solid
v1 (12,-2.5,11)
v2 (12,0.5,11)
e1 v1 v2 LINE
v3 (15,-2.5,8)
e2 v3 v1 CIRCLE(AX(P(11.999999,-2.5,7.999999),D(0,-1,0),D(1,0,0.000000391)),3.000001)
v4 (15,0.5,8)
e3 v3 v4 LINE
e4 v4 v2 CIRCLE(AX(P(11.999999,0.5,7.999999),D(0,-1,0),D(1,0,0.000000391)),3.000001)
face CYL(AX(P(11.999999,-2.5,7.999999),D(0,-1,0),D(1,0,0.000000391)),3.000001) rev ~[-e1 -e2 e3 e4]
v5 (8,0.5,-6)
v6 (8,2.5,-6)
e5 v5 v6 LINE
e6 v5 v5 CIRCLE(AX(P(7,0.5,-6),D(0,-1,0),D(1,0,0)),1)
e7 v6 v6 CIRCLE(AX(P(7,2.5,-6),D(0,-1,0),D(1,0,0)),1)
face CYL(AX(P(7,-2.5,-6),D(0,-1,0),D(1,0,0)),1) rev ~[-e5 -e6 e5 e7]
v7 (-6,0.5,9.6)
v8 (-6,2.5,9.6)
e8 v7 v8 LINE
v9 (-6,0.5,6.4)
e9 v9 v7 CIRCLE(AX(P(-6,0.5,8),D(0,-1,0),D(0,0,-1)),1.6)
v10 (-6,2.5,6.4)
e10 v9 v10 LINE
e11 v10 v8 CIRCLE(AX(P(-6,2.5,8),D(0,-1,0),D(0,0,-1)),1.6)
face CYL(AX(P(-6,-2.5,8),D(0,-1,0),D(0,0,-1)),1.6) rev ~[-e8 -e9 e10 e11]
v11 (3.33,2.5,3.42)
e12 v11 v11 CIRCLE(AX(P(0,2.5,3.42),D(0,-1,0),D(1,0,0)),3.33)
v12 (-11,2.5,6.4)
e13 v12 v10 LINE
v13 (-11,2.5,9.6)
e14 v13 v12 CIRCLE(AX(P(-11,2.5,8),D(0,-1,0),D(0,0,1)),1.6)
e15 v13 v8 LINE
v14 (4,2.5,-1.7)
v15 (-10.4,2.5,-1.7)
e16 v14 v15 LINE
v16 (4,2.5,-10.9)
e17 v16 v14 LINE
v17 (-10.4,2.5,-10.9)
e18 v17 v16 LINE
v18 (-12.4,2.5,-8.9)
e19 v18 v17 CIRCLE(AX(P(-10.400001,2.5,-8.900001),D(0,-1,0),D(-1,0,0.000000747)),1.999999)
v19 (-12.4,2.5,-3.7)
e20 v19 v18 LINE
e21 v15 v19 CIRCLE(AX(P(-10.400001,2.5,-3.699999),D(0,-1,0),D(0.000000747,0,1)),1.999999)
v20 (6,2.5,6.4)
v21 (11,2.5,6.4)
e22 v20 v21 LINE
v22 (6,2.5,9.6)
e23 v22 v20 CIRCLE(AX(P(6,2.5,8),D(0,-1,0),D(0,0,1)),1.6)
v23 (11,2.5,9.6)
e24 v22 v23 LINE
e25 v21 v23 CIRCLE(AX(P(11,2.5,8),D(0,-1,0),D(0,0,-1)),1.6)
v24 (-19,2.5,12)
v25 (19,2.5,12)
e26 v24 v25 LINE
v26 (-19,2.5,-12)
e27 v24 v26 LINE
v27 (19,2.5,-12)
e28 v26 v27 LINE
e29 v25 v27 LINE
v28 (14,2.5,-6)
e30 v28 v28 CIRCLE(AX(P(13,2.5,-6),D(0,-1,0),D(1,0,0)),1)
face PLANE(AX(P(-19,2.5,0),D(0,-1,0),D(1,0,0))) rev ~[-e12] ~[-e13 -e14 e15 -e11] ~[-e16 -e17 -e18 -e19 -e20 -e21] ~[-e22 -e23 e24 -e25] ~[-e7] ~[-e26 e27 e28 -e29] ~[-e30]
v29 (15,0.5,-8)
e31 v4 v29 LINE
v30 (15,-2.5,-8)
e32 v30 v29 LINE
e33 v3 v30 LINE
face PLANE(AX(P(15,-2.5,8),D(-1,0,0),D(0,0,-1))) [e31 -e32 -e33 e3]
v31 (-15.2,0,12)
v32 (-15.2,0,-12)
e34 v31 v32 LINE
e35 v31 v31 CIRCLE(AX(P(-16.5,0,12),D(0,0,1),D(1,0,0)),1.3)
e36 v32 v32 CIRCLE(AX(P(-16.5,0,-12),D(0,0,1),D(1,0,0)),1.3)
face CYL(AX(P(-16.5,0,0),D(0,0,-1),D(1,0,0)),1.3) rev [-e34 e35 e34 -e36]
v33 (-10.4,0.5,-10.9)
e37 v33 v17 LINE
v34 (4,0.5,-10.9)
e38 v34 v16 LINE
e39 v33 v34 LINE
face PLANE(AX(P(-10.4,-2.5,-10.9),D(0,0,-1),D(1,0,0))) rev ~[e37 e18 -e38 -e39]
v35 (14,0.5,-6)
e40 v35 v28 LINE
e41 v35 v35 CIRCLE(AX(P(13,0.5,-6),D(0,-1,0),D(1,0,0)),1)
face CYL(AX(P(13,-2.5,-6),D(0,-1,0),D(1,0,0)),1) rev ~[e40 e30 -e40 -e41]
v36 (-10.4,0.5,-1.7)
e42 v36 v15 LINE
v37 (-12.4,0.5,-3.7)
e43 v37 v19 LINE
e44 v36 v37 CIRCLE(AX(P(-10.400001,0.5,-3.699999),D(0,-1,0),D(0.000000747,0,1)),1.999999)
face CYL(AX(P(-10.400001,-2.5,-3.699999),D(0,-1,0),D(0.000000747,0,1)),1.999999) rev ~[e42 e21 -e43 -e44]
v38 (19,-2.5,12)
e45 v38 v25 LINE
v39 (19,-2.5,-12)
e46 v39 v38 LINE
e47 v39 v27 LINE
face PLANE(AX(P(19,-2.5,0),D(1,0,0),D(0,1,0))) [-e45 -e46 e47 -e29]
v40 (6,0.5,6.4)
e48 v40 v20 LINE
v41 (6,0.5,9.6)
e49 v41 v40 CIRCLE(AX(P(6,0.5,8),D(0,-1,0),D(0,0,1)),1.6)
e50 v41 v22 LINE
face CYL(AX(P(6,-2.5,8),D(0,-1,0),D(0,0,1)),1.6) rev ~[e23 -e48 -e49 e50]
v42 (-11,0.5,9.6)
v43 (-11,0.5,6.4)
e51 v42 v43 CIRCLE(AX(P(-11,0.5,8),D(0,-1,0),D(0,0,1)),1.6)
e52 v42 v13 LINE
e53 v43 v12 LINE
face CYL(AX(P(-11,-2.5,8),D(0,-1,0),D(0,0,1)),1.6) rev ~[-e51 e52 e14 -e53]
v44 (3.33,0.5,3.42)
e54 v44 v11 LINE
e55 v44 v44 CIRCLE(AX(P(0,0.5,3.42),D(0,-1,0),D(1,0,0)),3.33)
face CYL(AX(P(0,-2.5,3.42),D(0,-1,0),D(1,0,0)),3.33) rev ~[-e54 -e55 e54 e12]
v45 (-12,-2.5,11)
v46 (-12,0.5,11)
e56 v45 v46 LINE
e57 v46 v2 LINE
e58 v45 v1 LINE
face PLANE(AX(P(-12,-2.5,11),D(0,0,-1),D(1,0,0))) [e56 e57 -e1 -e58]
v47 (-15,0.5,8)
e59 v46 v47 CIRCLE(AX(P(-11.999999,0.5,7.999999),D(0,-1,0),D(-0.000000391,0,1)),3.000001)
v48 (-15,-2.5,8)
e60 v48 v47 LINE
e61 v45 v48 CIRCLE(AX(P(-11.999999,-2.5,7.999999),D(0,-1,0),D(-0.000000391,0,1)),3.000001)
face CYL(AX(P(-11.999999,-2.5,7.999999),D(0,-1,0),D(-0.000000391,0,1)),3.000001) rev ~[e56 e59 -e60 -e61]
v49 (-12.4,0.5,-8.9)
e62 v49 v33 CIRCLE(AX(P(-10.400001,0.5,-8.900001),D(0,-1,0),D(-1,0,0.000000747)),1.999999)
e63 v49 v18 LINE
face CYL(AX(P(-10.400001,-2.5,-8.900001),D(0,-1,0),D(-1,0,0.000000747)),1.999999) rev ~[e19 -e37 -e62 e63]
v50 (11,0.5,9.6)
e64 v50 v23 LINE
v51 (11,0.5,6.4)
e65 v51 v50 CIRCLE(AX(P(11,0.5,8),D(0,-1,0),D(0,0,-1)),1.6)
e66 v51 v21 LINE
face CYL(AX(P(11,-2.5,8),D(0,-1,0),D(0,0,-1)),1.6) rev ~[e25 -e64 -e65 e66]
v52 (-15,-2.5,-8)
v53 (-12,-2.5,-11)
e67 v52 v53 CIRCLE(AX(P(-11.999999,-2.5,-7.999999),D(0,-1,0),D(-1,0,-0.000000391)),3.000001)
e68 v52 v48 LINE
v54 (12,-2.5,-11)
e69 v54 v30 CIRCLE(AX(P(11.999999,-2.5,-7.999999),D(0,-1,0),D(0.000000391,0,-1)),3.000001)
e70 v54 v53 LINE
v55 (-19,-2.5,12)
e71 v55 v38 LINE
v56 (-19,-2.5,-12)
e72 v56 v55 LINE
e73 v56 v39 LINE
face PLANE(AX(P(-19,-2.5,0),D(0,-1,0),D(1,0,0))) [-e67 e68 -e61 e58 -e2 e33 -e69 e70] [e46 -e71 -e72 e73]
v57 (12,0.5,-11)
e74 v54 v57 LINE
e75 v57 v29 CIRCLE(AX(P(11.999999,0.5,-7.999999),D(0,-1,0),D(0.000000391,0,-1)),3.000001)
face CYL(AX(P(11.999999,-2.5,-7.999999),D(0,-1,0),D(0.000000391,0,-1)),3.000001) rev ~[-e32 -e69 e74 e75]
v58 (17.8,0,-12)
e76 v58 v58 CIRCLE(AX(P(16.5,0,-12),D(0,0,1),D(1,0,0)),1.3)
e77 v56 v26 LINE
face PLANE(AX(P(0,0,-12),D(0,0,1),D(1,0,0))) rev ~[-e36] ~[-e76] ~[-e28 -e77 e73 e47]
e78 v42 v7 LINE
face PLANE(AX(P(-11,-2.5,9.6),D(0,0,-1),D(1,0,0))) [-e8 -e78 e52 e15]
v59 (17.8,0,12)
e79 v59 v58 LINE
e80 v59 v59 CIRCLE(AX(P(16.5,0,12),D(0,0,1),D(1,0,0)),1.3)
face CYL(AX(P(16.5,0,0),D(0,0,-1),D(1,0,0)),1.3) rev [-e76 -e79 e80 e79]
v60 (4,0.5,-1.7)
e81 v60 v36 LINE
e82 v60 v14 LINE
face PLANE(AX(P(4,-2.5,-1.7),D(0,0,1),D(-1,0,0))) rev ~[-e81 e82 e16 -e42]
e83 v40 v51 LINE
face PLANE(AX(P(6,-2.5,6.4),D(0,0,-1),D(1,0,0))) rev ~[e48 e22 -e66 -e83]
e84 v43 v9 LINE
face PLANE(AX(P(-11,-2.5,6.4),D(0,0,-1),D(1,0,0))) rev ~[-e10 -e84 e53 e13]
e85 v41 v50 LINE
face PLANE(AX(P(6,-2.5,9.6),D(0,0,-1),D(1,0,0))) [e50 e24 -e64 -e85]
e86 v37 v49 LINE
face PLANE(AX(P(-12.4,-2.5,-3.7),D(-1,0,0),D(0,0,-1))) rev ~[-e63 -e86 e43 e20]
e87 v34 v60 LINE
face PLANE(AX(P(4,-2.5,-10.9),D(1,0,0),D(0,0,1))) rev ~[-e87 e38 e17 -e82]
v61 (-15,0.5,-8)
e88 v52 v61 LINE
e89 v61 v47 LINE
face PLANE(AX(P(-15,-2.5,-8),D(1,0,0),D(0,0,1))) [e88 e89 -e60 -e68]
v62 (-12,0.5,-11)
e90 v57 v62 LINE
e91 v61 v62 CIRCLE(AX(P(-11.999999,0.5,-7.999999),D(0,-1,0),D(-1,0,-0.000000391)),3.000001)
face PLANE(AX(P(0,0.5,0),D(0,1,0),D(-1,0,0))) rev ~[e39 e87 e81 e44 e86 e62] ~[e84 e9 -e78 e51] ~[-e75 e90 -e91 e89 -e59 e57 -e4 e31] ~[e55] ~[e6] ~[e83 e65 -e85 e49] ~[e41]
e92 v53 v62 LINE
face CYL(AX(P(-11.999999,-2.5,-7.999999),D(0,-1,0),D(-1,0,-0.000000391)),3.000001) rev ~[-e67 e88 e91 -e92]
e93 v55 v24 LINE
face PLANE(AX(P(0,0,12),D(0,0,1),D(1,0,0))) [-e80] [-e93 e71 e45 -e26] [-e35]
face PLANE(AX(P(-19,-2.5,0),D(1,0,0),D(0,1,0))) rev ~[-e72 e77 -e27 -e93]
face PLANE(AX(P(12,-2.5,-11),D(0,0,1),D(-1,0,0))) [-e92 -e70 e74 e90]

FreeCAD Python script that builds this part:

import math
import FreeCAD as App
import Part
import Sketcher

doc = App.newDocument("Part")
params = doc.addObject("Spreadsheet::Sheet", "Params")
for row, (alias, value) in enumerate([
    ("sketch1_diameter", "2.6 mm"),
    ("sketch1_width", "38 mm"),
    ("sketch1_height", "5 mm"),
    ("pad1_length", "24 mm"),
    ("sketch2_diameter", "2 mm"),
    ("sketch2_radius", "1.999999 mm"),
    ("sketch2_radius2", "1.6 mm"),
    ("sketch2_diameter2", "6.66 mm"),
    ("sketch2_width", "5 mm"),
    ("sketch3_radius", "3.000001 mm"),
    ("sketch3_width", "24 mm"),
    ("sketch3_height", "16 mm"),
    ("pocket2_length", "3 mm"),
], start=1):
    params.set(f"A{row}", alias)
    params.set(f"B{row}", "=" + value)
    params.setAlias(f"B{row}", alias)

body = doc.addObject("PartDesign::Body", "Body")

# Sketch on XY plane
sketch1 = body.newObject("Sketcher::SketchObject", "Sketch")
sketch1.AttachmentSupport = (doc.getObject("XY_Plane"), [""])
sketch1.MapMode = "FlatFace"
sketch1.addGeometry([
    Part.LineSegment(App.Vector(-19, 2.5, 0), App.Vector(-19, -2.5, 0)),  # 0
    Part.LineSegment(App.Vector(-19, -2.5, 0), App.Vector(19, -2.5, 0)),  # 1
    Part.LineSegment(App.Vector(19, -2.5, 0), App.Vector(19, 2.5, 0)),  # 2
    Part.LineSegment(App.Vector(19, 2.5, 0), App.Vector(-19, 2.5, 0)),  # 3
    Part.Circle(App.Vector(-16.5, 0, 0), App.Vector(0, 0, 1), 1.3),  # 4
    Part.Circle(App.Vector(16.5, 0, 0), App.Vector(0, 0, 1), 1.3),  # 5
], False)
sketch1.addConstraint([
    Sketcher.Constraint("Coincident", 0, 2, 1, 1),
    Sketcher.Constraint("Coincident", 1, 2, 2, 1),
    Sketcher.Constraint("Coincident", 2, 2, 3, 1),
    Sketcher.Constraint("Coincident", 3, 2, 0, 1),
    Sketcher.Constraint("Vertical", 0),
    Sketcher.Constraint("Horizontal", 1),
    Sketcher.Constraint("Vertical", 2),
    Sketcher.Constraint("Horizontal", 3),
    Sketcher.Constraint("Equal", 4, 5),
    Sketcher.Constraint("Symmetric", 4, 3, 5, 3, -1, 1),
    Sketcher.Constraint("Symmetric", 0, 2, 2, 2, -1, 1),
    Sketcher.Constraint("PointOnObject", 4, 3, -1),
    Sketcher.Constraint("Diameter", 4, 2.6),
    Sketcher.Constraint("DistanceX", 1, 1, 1, 2, 38.0),
    Sketcher.Constraint("DistanceY", 0, 2, 0, 1, 5.0),
    Sketcher.Constraint("DistanceX", 4, 3, 5, 3, 33.0),
])
sketch1.setExpression("Constraints[12]", "Params.sketch1_diameter")
sketch1.setExpression("Constraints[13]", "Params.sketch1_width")
sketch1.setExpression("Constraints[14]", "Params.sketch1_height")
pad1 = body.newObject("PartDesign::Pad", "Pad")
pad1.Profile = sketch1
pad1.setExpression("Length", "Params.pad1_length")
pad1.Midplane = True

# Sketch on XZ plane
sketch2 = body.newObject("Sketcher::SketchObject", "Sketch001")
sketch2.AttachmentSupport = (doc.getObject("XZ_Plane"), [""])
sketch2.MapMode = "FlatFace"
sketch2.AttachmentOffset = App.Placement(App.Vector(0, 0, 2.5), App.Rotation())
sketch2.addGeometry([
    Part.Circle(App.Vector(0, 3.42, 0), App.Vector(0, 0, 1), 3.33),  # 0
    Part.Circle(App.Vector(7, -6, 0), App.Vector(0, 0, 1), 1),  # 1
    Part.Circle(App.Vector(13, -6, 0), App.Vector(0, 0, 1), 1),  # 2
    Part.LineSegment(App.Vector(4, -1.7, 0), App.Vector(-10.4, -1.7, 0)),  # 3
    Part.ArcOfCircle(Part.Circle(App.Vector(-10.400001, -3.699999, 0), App.Vector(0, 0, 1), 1.999999), math.radians(89.999957), math.radians(180.000043)),  # 4
    Part.LineSegment(App.Vector(-12.4, -3.7, 0), App.Vector(-12.4, -8.9, 0)),  # 5
    Part.ArcOfCircle(Part.Circle(App.Vector(-10.400001, -8.900001, 0), App.Vector(0, 0, 1), 1.999999), math.radians(179.999957), math.radians(270.000043)),  # 6
    Part.LineSegment(App.Vector(-10.4, -10.9, 0), App.Vector(4, -10.9, 0)),  # 7
    Part.LineSegment(App.Vector(4, -10.9, 0), App.Vector(4, -1.7, 0)),  # 8
    Part.ArcOfCircle(Part.Circle(App.Vector(-11, 8, 0), App.Vector(0, 0, 1), 1.6), math.radians(90), math.radians(270)),  # 9
    Part.LineSegment(App.Vector(-11, 6.4, 0), App.Vector(-6, 6.4, 0)),  # 10
    Part.ArcOfCircle(Part.Circle(App.Vector(-6, 8, 0), App.Vector(0, 0, 1), 1.6), math.radians(-90), math.radians(90)),  # 11
    Part.LineSegment(App.Vector(-6, 9.6, 0), App.Vector(-11, 9.6, 0)),  # 12
    Part.ArcOfCircle(Part.Circle(App.Vector(6, 8, 0), App.Vector(0, 0, 1), 1.6), math.radians(90), math.radians(270)),  # 13
    Part.LineSegment(App.Vector(6, 6.4, 0), App.Vector(11, 6.4, 0)),  # 14
    Part.ArcOfCircle(Part.Circle(App.Vector(11, 8, 0), App.Vector(0, 0, 1), 1.6), math.radians(-90), math.radians(90)),  # 15
    Part.LineSegment(App.Vector(11, 9.6, 0), App.Vector(6, 9.6, 0)),  # 16
], False)
sketch2.addConstraint([
    Sketcher.Constraint("Tangent", 3, 2, 4, 1),
    Sketcher.Constraint("Tangent", 4, 2, 5, 1),
    Sketcher.Constraint("Tangent", 5, 2, 6, 1),
    Sketcher.Constraint("Tangent", 6, 2, 7, 1),
    Sketcher.Constraint("Coincident", 7, 2, 8, 1),
    Sketcher.Constraint("Coincident", 8, 2, 3, 1),
    Sketcher.Constraint("Tangent", 9, 2, 10, 1),
    Sketcher.Constraint("Tangent", 10, 2, 11, 1),
    Sketcher.Constraint("Tangent", 11, 2, 12, 1),
    Sketcher.Constraint("Tangent", 12, 2, 9, 1),
    Sketcher.Constraint("Tangent", 13, 2, 14, 1),
    Sketcher.Constraint("Tangent", 14, 2, 15, 1),
    Sketcher.Constraint("Tangent", 15, 2, 16, 1),
    Sketcher.Constraint("Tangent", 16, 2, 13, 1),
    Sketcher.Constraint("Horizontal", 3),
    Sketcher.Constraint("Vertical", 5),
    Sketcher.Constraint("Horizontal", 7),
    Sketcher.Constraint("Vertical", 8),
    Sketcher.Constraint("Horizontal", 10),
    Sketcher.Constraint("Horizontal", 12),
    Sketcher.Constraint("Horizontal", 14),
    Sketcher.Constraint("Horizontal", 16),
    Sketcher.Constraint("Equal", 1, 2),
    Sketcher.Constraint("Equal", 4, 6),
    Sketcher.Constraint("Equal", 11, 13),
    Sketcher.Constraint("Symmetric", 11, 3, 13, 3, -2),
    Sketcher.Constraint("PointOnObject", 0, 3, -2),
    Sketcher.Constraint("Horizontal", 1, 3, 2, 3),
    Sketcher.Constraint("Equal", 12, 14),
    Sketcher.Constraint("Diameter", 1, 2.0),
    Sketcher.Constraint("Radius", 4, 1.999999),
    Sketcher.Constraint("Radius", 9, 1.6),
    Sketcher.Constraint("Diameter", 0, 6.66),
    Sketcher.Constraint("DistanceX", 10, 1, 10, 2, 5.0),
    Sketcher.Constraint("DistanceX", 3, 2, 3, 1, 14.4),
    Sketcher.Constraint("DistanceY", 5, 2, 5, 1, 5.2),
    Sketcher.Constraint("DistanceX", -1, 1, 1, 3, 7.0),
    Sketcher.Constraint("DistanceY", 1, 3, -1, 1, 6.0),
    Sketcher.Constraint("DistanceX", -1, 1, 2, 3, 13.0),
    Sketcher.Constraint("DistanceX", 9, 3, -1, 1, 11.0),
    Sketcher.Constraint("DistanceY", -1, 1, 9, 3, 8.0),
    Sketcher.Constraint("DistanceX", -1, 1, 7, 2, 4.0),
    Sketcher.Constraint("DistanceY", 4, 3, -1, 1, 3.699999),
    Sketcher.Constraint("DistanceY", -1, 1, 0, 3, 3.42),
])
sketch2.setExpression("Constraints[29]", "Params.sketch2_diameter")
sketch2.setExpression("Constraints[30]", "Params.sketch2_radius")
sketch2.setExpression("Constraints[31]", "Params.sketch2_radius2")
sketch2.setExpression("Constraints[32]", "Params.sketch2_diameter2")
sketch2.setExpression("Constraints[33]", "Params.sketch2_width")
pocket1 = body.newObject("PartDesign::Pocket", "Pocket")
pocket1.Profile = sketch2
pocket1.Type = "ThroughAll"

# Sketch on XZ plane
sketch3 = body.newObject("Sketcher::SketchObject", "Sketch002")
sketch3.AttachmentSupport = (doc.getObject("XZ_Plane"), [""])
sketch3.MapMode = "FlatFace"
sketch3.AttachmentOffset = App.Placement(App.Vector(0, 0, 2.5), App.Rotation())
sketch3.addGeometry([
    Part.LineSegment(App.Vector(12, 11, 0), App.Vector(-12, 11, 0)),  # 0
    Part.ArcOfCircle(Part.Circle(App.Vector(-11.999999, 7.999999, 0), App.Vector(0, 0, 1), 3.000001), math.radians(90.000022), math.radians(179.999978)),  # 1
    Part.LineSegment(App.Vector(-15, 8, 0), App.Vector(-15, -8, 0)),  # 2
    Part.ArcOfCircle(Part.Circle(App.Vector(-11.999999, -7.999999, 0), App.Vector(0, 0, 1), 3.000001), math.radians(-179.999978), math.radians(-90.000022)),  # 3
    Part.LineSegment(App.Vector(-12, -11, 0), App.Vector(12, -11, 0)),  # 4
    Part.ArcOfCircle(Part.Circle(App.Vector(11.999999, -7.999999, 0), App.Vector(0, 0, 1), 3.000001), math.radians(-89.999978), math.radians(-0.000022)),  # 5
    Part.LineSegment(App.Vector(15, -8, 0), App.Vector(15, 8, 0)),  # 6
    Part.ArcOfCircle(Part.Circle(App.Vector(11.999999, 7.999999, 0), App.Vector(0, 0, 1), 3.000001), math.radians(0.000022), math.radians(89.999978)),  # 7
], False)
sketch3.addConstraint([
    Sketcher.Constraint("Tangent", 0, 2, 1, 1),
    Sketcher.Constraint("Tangent", 1, 2, 2, 1),
    Sketcher.Constraint("Tangent", 2, 2, 3, 1),
    Sketcher.Constraint("Tangent", 3, 2, 4, 1),
    Sketcher.Constraint("Tangent", 4, 2, 5, 1),
    Sketcher.Constraint("Tangent", 5, 2, 6, 1),
    Sketcher.Constraint("Tangent", 6, 2, 7, 1),
    Sketcher.Constraint("Tangent", 7, 2, 0, 1),
    Sketcher.Constraint("Horizontal", 0),
    Sketcher.Constraint("Vertical", 2),
    Sketcher.Constraint("Horizontal", 4),
    Sketcher.Constraint("Vertical", 6),
    Sketcher.Constraint("Equal", 1, 3),
    Sketcher.Constraint("Equal", 3, 5),
    Sketcher.Constraint("Equal", 5, 7),
    Sketcher.Constraint("Symmetric", 1, 3, 5, 3, -1, 1),
    Sketcher.Constraint("Radius", 1, 3.000001),
    Sketcher.Constraint("DistanceX", 0, 2, 0, 1, 24.0),
    Sketcher.Constraint("DistanceY", 2, 2, 2, 1, 16.0),
])
sketch3.setExpression("Constraints[16]", "Params.sketch3_radius")
sketch3.setExpression("Constraints[17]", "Params.sketch3_width")
sketch3.setExpression("Constraints[18]", "Params.sketch3_height")
pocket2 = body.newObject("PartDesign::Pocket", "Pocket001")
pocket2.Profile = sketch3
pocket2.setExpression("Length", "Params.pocket2_length")

doc.recompute()
